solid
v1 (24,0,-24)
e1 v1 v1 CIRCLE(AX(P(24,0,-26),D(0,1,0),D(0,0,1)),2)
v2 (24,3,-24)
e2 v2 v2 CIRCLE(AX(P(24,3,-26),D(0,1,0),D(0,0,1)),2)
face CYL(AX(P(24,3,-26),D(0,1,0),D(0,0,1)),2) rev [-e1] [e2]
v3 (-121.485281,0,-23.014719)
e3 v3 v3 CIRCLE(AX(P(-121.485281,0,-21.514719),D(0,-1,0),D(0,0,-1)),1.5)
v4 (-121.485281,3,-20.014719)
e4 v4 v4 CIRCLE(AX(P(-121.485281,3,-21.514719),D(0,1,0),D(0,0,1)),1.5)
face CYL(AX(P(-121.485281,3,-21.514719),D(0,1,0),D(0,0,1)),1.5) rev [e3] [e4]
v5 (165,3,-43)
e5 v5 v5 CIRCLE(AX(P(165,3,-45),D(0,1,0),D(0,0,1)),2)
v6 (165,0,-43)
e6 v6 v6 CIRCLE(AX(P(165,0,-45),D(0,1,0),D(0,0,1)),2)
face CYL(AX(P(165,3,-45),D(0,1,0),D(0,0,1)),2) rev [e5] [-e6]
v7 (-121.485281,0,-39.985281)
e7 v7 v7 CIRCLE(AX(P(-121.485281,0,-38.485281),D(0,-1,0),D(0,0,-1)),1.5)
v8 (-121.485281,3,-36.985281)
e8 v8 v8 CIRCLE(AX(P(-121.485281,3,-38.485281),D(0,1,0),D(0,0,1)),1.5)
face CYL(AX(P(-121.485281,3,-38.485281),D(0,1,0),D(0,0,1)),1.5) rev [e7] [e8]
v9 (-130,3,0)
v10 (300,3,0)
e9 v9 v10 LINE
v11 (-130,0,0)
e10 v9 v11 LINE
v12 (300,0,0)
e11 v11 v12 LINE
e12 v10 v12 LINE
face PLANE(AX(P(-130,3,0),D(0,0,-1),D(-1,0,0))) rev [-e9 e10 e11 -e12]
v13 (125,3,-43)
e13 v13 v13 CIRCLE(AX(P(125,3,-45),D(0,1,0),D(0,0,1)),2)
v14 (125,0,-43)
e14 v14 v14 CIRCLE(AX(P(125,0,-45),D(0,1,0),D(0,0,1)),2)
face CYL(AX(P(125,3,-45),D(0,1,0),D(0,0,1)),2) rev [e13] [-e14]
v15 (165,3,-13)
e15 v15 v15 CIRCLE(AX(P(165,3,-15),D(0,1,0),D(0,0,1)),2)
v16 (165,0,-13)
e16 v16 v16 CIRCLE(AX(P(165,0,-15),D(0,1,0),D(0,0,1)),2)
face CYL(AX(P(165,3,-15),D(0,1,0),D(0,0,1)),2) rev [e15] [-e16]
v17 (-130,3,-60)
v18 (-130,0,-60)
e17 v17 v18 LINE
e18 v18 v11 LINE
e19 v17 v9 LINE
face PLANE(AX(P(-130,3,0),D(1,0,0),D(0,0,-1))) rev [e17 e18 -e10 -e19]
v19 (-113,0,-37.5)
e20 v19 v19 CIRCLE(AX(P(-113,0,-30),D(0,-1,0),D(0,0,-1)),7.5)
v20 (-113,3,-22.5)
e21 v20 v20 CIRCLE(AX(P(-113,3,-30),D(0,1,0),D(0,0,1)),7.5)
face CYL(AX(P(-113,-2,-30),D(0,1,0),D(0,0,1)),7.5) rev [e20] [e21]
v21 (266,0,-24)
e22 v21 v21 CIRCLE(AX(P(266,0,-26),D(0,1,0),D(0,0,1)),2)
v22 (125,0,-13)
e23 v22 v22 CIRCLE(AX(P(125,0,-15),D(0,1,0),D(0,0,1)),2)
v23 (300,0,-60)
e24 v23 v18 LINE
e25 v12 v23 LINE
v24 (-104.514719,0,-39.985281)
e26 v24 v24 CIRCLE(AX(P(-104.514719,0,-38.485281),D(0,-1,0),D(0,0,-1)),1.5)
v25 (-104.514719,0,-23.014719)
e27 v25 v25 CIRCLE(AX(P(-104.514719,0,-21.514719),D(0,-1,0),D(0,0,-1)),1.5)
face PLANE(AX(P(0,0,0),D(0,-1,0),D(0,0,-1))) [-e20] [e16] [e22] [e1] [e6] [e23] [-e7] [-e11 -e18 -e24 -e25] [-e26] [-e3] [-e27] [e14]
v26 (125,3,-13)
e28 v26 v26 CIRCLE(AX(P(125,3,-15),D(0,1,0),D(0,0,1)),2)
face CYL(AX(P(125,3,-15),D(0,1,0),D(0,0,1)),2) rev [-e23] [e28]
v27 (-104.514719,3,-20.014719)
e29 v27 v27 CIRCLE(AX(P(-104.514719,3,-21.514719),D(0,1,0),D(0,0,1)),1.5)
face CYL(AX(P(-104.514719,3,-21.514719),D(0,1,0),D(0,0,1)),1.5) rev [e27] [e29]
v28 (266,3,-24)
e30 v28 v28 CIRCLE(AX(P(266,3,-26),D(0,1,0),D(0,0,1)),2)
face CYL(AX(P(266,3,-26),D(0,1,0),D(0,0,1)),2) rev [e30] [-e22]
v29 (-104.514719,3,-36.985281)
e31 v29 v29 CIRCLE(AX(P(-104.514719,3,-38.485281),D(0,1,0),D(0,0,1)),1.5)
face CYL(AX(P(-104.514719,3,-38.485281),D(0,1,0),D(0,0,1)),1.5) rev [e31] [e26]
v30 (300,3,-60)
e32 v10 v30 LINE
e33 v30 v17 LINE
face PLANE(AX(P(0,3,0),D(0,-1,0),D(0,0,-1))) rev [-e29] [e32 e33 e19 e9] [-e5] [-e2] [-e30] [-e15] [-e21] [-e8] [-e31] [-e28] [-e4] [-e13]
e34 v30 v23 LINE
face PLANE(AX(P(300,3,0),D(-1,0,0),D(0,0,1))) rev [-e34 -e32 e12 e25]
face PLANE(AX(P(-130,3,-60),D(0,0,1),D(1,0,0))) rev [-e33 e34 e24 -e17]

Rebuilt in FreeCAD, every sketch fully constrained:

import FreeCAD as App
import Part
import Sketcher
Q = App.Units.Quantity

doc = App.newDocument("Part")
params = doc.addObject("Spreadsheet::Sheet", "Params")
for row, (alias, value) in enumerate([
    ("sketch1_width", "430 mm"),
    ("sketch1_height", "60 mm"),
    ("pad1_length", "3 mm"),
    ("sketch2_diameter", "4 mm"),
    ("hole_diameter", "4 mm"),
    ("sketch3_diameter", "15 mm"),
    ("pocket1_length", "5 mm"),
    ("sketch4_diameter", "3 mm"),
    ("hole2_diameter", "3 mm"),
    ("hole2_depth", "6 mm"),
], start=1):
    params.set(f"A{row}", alias)
    params.set(f"B{row}", "=" + value)
    params.setAlias(f"B{row}", alias)

body = doc.addObject("PartDesign::Body", "Body")

# Sketch on XZ plane
sketch1 = body.newObject("Sketcher::SketchObject", "Sketch")
sketch1.AttachmentSupport = (doc.getObject("XZ_Plane"), [""])
sketch1.MapMode = "FlatFace"
sketch1.addGeometry(Part.LineSegment(App.Vector(-130, -60, 0), App.Vector(-130, 0, 0)), False)
sketch1.addGeometry(Part.LineSegment(App.Vector(-130, 0, 0), App.Vector(300, 0, 0)), False)
sketch1.addGeometry(Part.LineSegment(App.Vector(300, 0, 0), App.Vector(300, -60, 0)), False)
sketch1.addGeometry(Part.LineSegment(App.Vector(300, -60, 0), App.Vector(-130, -60, 0)), False)
sketch1.addConstraint(Sketcher.Constraint("Coincident", 0, 2, 1, 1))
sketch1.addConstraint(Sketcher.Constraint("Coincident", 1, 2, 2, 1))
sketch1.addConstraint(Sketcher.Constraint("Coincident", 2, 2, 3, 1))
sketch1.addConstraint(Sketcher.Constraint("Coincident", 3, 2, 0, 1))
sketch1.addConstraint(Sketcher.Constraint("Vertical", 0))
sketch1.addConstraint(Sketcher.Constraint("Horizontal", 1))
sketch1.addConstraint(Sketcher.Constraint("Vertical", 2))
sketch1.addConstraint(Sketcher.Constraint("Horizontal", 3))
sketch1.addConstraint(Sketcher.Constraint("PointOnObject", 0, 2, -1))
sketch1.addConstraint(Sketcher.Constraint("DistanceX", 1, 1, 1, 2, Q("430 mm")))
sketch1.addConstraint(Sketcher.Constraint("DistanceY", 0, 1, 0, 2, Q("60 mm")))
sketch1.addConstraint(Sketcher.Constraint("DistanceX", 0, 2, -1, 1, Q("130 mm")))
sketch1.setExpression("Constraints[9]", "Params.sketch1_width")
sketch1.setExpression("Constraints[10]", "Params.sketch1_height")
pad1 = body.newObject("PartDesign::Pad", "Pad")
pad1.Profile = sketch1
pad1.setExpression("Length", "Params.pad1_length")
pad1.Reversed = True

# Sketch on XZ plane
sketch2 = body.newObject("Sketcher::SketchObject", "Sketch001")
sketch2.AttachmentSupport = (doc.getObject("XZ_Plane"), [""])
sketch2.MapMode = "FlatFace"
sketch2.AttachmentOffset = App.Placement(App.Vector(0, 0, -3), App.Rotation())
sketch2.addGeometry(Part.Circle(App.Vector(266, -26, 0), App.Vector(0, 0, 1), 2), False)
sketch2.addGeometry(Part.Circle(App.Vector(24, -26, 0), App.Vector(0, 0, 1), 2), False)
sketch2.addGeometry(Part.Circle(App.Vector(125, -15, 0), App.Vector(0, 0, 1), 2), False)
sketch2.addGeometry(Part.Circle(App.Vector(165, -15, 0), App.Vector(0, 0, 1), 2), False)
sketch2.addGeometry(Part.Circle(App.Vector(165, -45, 0), App.Vector(0, 0, 1), 2), False)
sketch2.addGeometry(Part.Circle(App.Vector(125, -45, 0), App.Vector(0, 0, 1), 2), False)
sketch2.addConstraint(Sketcher.Constraint("Equal", 0, 1))
sketch2.addConstraint(Sketcher.Constraint("Equal", 1, 2))
sketch2.addConstraint(Sketcher.Constraint("Equal", 2, 3))
sketch2.addConstraint(Sketcher.Constraint("Equal", 3, 4))
sketch2.addConstraint(Sketcher.Constraint("Equal", 4, 5))
sketch2.addConstraint(Sketcher.Constraint("Horizontal", 0, 3, 1, 3))
sketch2.addConstraint(Sketcher.Constraint("Horizontal", 2, 3, 3, 3))
sketch2.addConstraint(Sketcher.Constraint("Horizontal", 4, 3, 5, 3))
sketch2.addConstraint(Sketcher.Constraint("Vertical", 3, 3, 4, 3))
sketch2.addConstraint(Sketcher.Constraint("Vertical", 2, 3, 5, 3))
sketch2.addConstraint(Sketcher.Constraint("Diameter", 0, Q("4 mm")))
sketch2.addConstraint(Sketcher.Constraint("DistanceX", -1, 1, 0, 3, Q("266 mm")))
sketch2.addConstraint(Sketcher.Constraint("DistanceY", 0, 3, -1, 1, Q("26 mm")))
sketch2.addConstraint(Sketcher.Constraint("DistanceX", -1, 1, 1, 3, Q("24 mm")))
sketch2.addConstraint(Sketcher.Constraint("DistanceX", -1, 1, 2, 3, Q("125 mm")))
sketch2.addConstraint(Sketcher.Constraint("DistanceY", 2, 3, -1, 1, Q("15 mm")))
sketch2.addConstraint(Sketcher.Constraint("DistanceX", -1, 1, 3, 3, Q("165 mm")))
sketch2.addConstraint(Sketcher.Constraint("DistanceY", 4, 3, -1, 1, Q("45 mm")))
sketch2.setExpression("Constraints[10]", "Params.sketch2_diameter")
doc.recompute()
hole = body.newObject("PartDesign::Hole", "Hole")
hole.Profile = sketch2
hole.ThreadType = "None"
hole.setExpression("Diameter", "Params.hole_diameter")
hole.DepthType = "ThroughAll"
hole.Reversed = True

# Sketch on XZ plane
sketch3 = body.newObject("Sketcher::SketchObject", "Sketch002")
sketch3.AttachmentSupport = (doc.getObject("XZ_Plane"), [""])
sketch3.MapMode = "FlatFace"
sketch3.AttachmentOffset = App.Placement(App.Vector(0, 0, -3), App.Rotation())
sketch3.addGeometry(Part.Circle(App.Vector(-113, -30, 0), App.Vector(0, 0, 1), 8), False)
sketch3.addConstraint(Sketcher.Constraint("Diameter", 0, Q("15 mm")))
sketch3.addConstraint(Sketcher.Constraint("DistanceX", 0, 3, -1, 1, Q("113 mm")))
sketch3.addConstraint(Sketcher.Constraint("DistanceY", 0, 3, -1, 1, Q("30 mm")))
sketch3.setExpression("Constraints[0]", "Params.sketch3_diameter")
pocket1 = body.newObject("PartDesign::Pocket", "Pocket")
pocket1.Profile = sketch3
pocket1.setExpression("Length", "Params.pocket1_length")
pocket1.Reversed = True

# Sketch on XZ plane
sketch4 = body.newObject("Sketcher::SketchObject", "Sketch003")
sketch4.AttachmentSupport = (doc.getObject("XZ_Plane"), [""])
sketch4.MapMode = "FlatFace"
sketch4.AttachmentOffset = App.Placement(App.Vector(0, 0, -3), App.Rotation())
sketch4.addGeometry(Part.Circle(App.Vector(-121.5, -21.5, 0), App.Vector(0, 0, 1), 1.5), False)
sketch4.addGeometry(Part.Circle(App.Vector(-121.5, -38.5, 0), App.Vector(0, 0, 1), 1.5), False)
sketch4.addGeometry(Part.Circle(App.Vector(-104.5, -21.5, 0), App.Vector(0, 0, 1), 1.5), False)
sketch4.addGeometry(Part.Circle(App.Vector(-104.5, -38.5, 0), App.Vector(0, 0, 1), 1.5), False)
sketch4.addConstraint(Sketcher.Constraint("Equal", 0, 1))
sketch4.addConstraint(Sketcher.Constraint("Equal", 1, 2))
sketch4.addConstraint(Sketcher.Constraint("Equal", 2, 3))
sketch4.addConstraint(Sketcher.Constraint("Horizontal", 0, 3, 2, 3))
sketch4.addConstraint(Sketcher.Constraint("Horizontal", 1, 3, 3, 3))
sketch4.addConstraint(Sketcher.Constraint("Vertical", 0, 3, 1, 3))
sketch4.addConstraint(Sketcher.Constraint("Vertical", 2, 3, 3, 3))
sketch4.addConstraint(Sketcher.Constraint("Diameter", 0, Q("3 mm")))
sketch4.addConstraint(Sketcher.Constraint("DistanceX", 0, 3, -1, 1, Q("121.485281 mm")))
sketch4.addConstraint(Sketcher.Constraint("DistanceY", 0, 3, -1, 1, Q("21.514719 mm")))
sketch4.addConstraint(Sketcher.Constraint("DistanceY", 1, 3, -1, 1, Q("38.485281 mm")))
sketch4.addConstraint(Sketcher.Constraint("DistanceX", 2, 3, -1, 1, Q("104.514719 mm")))
sketch4.setExpression("Constraints[7]", "Params.sketch4_diameter")
doc.recompute()
hole2 = body.newObject("PartDesign::Hole", "Hole001")
hole2.Profile = sketch4
hole2.ThreadType = "None"
hole2.setExpression("Diameter", "Params.hole2_diameter")
hole2.DepthType = "Dimension"
hole2.setExpression("Depth", "Params.hole2_depth")
hole2.DrillPoint = "Angled"
hole2.DrillPointAngle = 118
hole2.Reversed = True

doc.recompute()
